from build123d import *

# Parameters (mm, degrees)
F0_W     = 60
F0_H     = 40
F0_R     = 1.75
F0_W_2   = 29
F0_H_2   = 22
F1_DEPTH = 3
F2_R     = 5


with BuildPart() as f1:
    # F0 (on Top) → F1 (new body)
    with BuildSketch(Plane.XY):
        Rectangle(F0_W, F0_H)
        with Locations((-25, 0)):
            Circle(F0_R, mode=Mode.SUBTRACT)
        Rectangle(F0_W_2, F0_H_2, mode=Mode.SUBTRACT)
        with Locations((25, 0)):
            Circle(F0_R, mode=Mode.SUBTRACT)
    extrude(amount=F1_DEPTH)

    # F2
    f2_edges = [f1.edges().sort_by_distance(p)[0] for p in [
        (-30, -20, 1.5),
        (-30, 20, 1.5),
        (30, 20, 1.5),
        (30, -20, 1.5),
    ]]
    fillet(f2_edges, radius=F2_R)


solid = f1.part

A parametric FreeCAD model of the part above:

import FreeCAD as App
import Part
import Sketcher
from FreeCAD import Vector


def edges_at(feature, points):
    """Names of the edges that pass closest to the given points."""
    edges = feature.Shape.Edges
    near = lambda p: min(range(len(edges)), key=lambda i: edges[i].distToShape(Part.Vertex(*p))[0])
    return sorted({f"Edge{near(p) + 1}" for p in points})

doc = App.newDocument("Part")
params = doc.addObject("Spreadsheet::Sheet", "Params")
for row, (alias, value) in enumerate([
    ("sketch1_diameter", "3.5 mm"),
    ("sketch1_width", "60 mm"),
    ("sketch1_width2", "29 mm"),
    ("sketch1_height", "40 mm"),
    ("sketch1_height2", "22 mm"),
    ("pad1_length", "3 mm"),
    ("fillet_radius", "5 mm"),
], start=1):
    params.set(f"A{row}", alias)
    params.set(f"B{row}", "=" + value)
    params.setAlias(f"B{row}", alias)

body = doc.addObject("PartDesign::Body", "Body")

# Sketch on XY plane
sketch1 = body.newObject("Sketcher::SketchObject", "Sketch")
sketch1.AttachmentSupport = (doc.getObject("XY_Plane"), [""])
sketch1.MapMode = "FlatFace"
sketch1.addGeometry(Part.LineSegment(Vector(-30, 20, 0), Vector(-30, -20, 0)), False)
sketch1.addGeometry(Part.LineSegment(Vector(-30, -20, 0), Vector(30, -20, 0)), False)
sketch1.addGeometry(Part.LineSegment(Vector(30, -20, 0), Vector(30, 20, 0)), False)
sketch1.addGeometry(Part.LineSegment(Vector(30, 20, 0), Vector(-30, 20, 0)), False)
sketch1.addGeometry(Part.Circle(Vector(-25, 0, 0), Vector(0, 0, 1), 1.75), False)
sketch1.addGeometry(Part.LineSegment(Vector(14.5, -11, 0), Vector(-14.5, -11, 0)), False)
sketch1.addGeometry(Part.LineSegment(Vector(-14.5, -11, 0), Vector(-14.5, 11, 0)), False)
sketch1.addGeometry(Part.LineSegment(Vector(-14.5, 11, 0), Vector(14.5, 11, 0)), False)
sketch1.addGeometry(Part.LineSegment(Vector(14.5, 11, 0), Vector(14.5, -11, 0)), False)
sketch1.addGeometry(Part.Circle(Vector(25, 0, 0), Vector(0, 0, 1), 1.75), False)
sketch1.addConstraint(Sketcher.Constraint("Coincident", 0, 2, 1, 1))
sketch1.addConstraint(Sketcher.Constraint("Coincident", 1, 2, 2, 1))
sketch1.addConstraint(Sketcher.Constraint("Coincident", 2, 2, 3, 1))
sketch1.addConstraint(Sketcher.Constraint("Coincident", 3, 2, 0, 1))
sketch1.addConstraint(Sketcher.Constraint("Coincident", 5, 2, 6, 1))
sketch1.addConstraint(Sketcher.Constraint("Coincident", 6, 2, 7, 1))
sketch1.addConstraint(Sketcher.Constraint("Coincident", 7, 2, 8, 1))
sketch1.addConstraint(Sketcher.Constraint("Coincident", 8, 2, 5, 1))
sketch1.addConstraint(Sketcher.Constraint("Vertical", 0))
sketch1.addConstraint(Sketcher.Constraint("Horizontal", 1))
sketch1.addConstraint(Sketcher.Constraint("Vertical", 2))
sketch1.addConstraint(Sketcher.Constraint("Horizontal", 3))
sketch1.addConstraint(Sketcher.Constraint("Horizontal", 5))
sketch1.addConstraint(Sketcher.Constraint("Vertical", 6))
sketch1.addConstraint(Sketcher.Constraint("Horizontal", 7))
sketch1.addConstraint(Sketcher.Constraint("Vertical", 8))
sketch1.addConstraint(Sketcher.Constraint("Equal", 4, 9))
sketch1.addConstraint(Sketcher.Constraint("Symmetric", 4, 3, 9, 3, -1, 1))
sketch1.addConstraint(Sketcher.Constraint("Symmetric", 0, 2, 2, 2, -1, 1))
sketch1.addConstraint(Sketcher.Constraint("Symmetric", 5, 2, 7, 2, -1, 1))
sketch1.addConstraint(Sketcher.Constraint("PointOnObject", 4, 3, -1))
sketch1.addConstraint(Sketcher.Constraint("Diameter", 4, 3.5))
sketch1.addConstraint(Sketcher.Constraint("DistanceX", 1, 1, 1, 2, 60.0))
sketch1.addConstraint(Sketcher.Constraint("DistanceX", 5, 2, 5, 1, 29.0))
sketch1.addConstraint(Sketcher.Constraint("DistanceY", 0, 2, 0, 1, 40.0))
sketch1.addConstraint(Sketcher.Constraint("DistanceY", 6, 1, 6, 2, 22.0))
sketch1.addConstraint(Sketcher.Constraint("DistanceX", 4, 3, -1, 1, 25.0))
sketch1.setExpression("Constraints[21]", "Params.sketch1_diameter")
sketch1.setExpression("Constraints[22]", "Params.sketch1_width")
sketch1.setExpression("Constraints[23]", "Params.sketch1_width2")
sketch1.setExpression("Constraints[24]", "Params.sketch1_height")
sketch1.setExpression("Constraints[25]", "Params.sketch1_height2")
pad1 = body.newObject("PartDesign::Pad", "Pad")
pad1.Profile = sketch1
pad1.setExpression("Length", "Params.pad1_length")
doc.recompute()

fillet = body.newObject("PartDesign::Fillet", "Fillet")
fillet.Base = (pad1, edges_at(pad1, [
    (-30, -20, 1.5),
    (-30, 20, 1.5),
    (30, 20, 1.5),
    (30, -20, 1.5),
]))
fillet.setExpression("Radius", "Params.fillet_radius")

doc.recompute()
